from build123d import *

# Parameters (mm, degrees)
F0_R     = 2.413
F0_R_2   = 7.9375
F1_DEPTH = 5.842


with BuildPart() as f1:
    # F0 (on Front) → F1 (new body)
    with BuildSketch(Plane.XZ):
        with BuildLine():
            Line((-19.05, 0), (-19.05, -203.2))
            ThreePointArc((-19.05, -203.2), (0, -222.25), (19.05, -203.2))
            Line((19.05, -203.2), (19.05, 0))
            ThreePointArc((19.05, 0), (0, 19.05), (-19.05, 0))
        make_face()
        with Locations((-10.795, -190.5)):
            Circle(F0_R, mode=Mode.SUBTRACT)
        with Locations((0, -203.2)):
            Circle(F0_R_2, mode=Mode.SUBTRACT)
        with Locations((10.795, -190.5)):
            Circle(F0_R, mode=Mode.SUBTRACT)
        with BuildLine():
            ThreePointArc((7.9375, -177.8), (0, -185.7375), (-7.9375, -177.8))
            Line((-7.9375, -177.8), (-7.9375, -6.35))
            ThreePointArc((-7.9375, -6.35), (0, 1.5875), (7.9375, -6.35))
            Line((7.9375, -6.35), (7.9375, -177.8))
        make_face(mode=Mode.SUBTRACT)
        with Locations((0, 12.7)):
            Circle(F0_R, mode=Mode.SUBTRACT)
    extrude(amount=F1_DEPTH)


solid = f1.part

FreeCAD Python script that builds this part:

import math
import FreeCAD as App
import Part
import Sketcher
from FreeCAD import Vector
Q = App.Units.Quantity

doc = App.newDocument("Part")
body = doc.addObject("PartDesign::Body", "Body")

# Sketch on XZ plane
sketch1 = body.newObject("Sketcher::SketchObject", "Sketch")
sketch1.AttachmentSupport = (doc.getObject("XZ_Plane"), [""])
sketch1.MapMode = "FlatFace"
sketch1.addGeometry([
    Part.LineSegment(Vector(-19.1, 0, 0), Vector(-19.1, -203.2, 0)),  # 0
    Part.ArcOfCircle(Part.Circle(Vector(0, -203.2, 0), Vector(0, 0, 1), 19.1), math.radians(180), math.radians(360)),  # 1
    Part.LineSegment(Vector(19.1, -203.2, 0), Vector(19.1, 0, 0)),  # 2
    Part.ArcOfCircle(Part.Circle(Vector(0, 0, 0), Vector(0, 0, 1), 19.1), math.radians(0), math.radians(180)),  # 3
    Part.Circle(Vector(-10.8, -190.5, 0), Vector(0, 0, 1), 2.4),  # 4
    Part.Circle(Vector(0, -203.2, 0), Vector(0, 0, 1), 7.9),  # 5
    Part.Circle(Vector(10.8, -190.5, 0), Vector(0, 0, 1), 2.4),  # 6
    Part.LineSegment(Vector(7.9, -6.3, 0), Vector(7.9, -177.8, 0)),  # 7
    Part.ArcOfCircle(Part.Circle(Vector(0, -177.8, 0), Vector(0, 0, 1), 7.9), math.radians(180), math.radians(360)),  # 8
    Part.LineSegment(Vector(-7.9, -177.8, 0), Vector(-7.9, -6.3, 0)),  # 9
    Part.ArcOfCircle(Part.Circle(Vector(0, -6.3, 0), Vector(0, 0, 1), 7.9), math.radians(0), math.radians(180)),  # 10
    Part.Circle(Vector(0, 12.7, 0), Vector(0, 0, 1), 2.4),  # 11
], False)
sketch1.addConstraint([
    Sketcher.Constraint("Tangent", 0, 2, 1, 1),
    Sketcher.Constraint("Tangent", 1, 2, 2, 1),
    Sketcher.Constraint("Tangent", 2, 2, 3, 1),
    Sketcher.Constraint("Tangent", 3, 2, 0, 1),
    Sketcher.Constraint("Tangent", 7, 2, 8, 2),
    Sketcher.Constraint("Tangent", 8, 1, 9, 1),
    Sketcher.Constraint("Tangent", 9, 2, 10, 2),
    Sketcher.Constraint("Tangent", 10, 1, 7, 1),
    Sketcher.Constraint("Vertical", 0),
    Sketcher.Constraint("Vertical", 2),
    Sketcher.Constraint("Vertical", 7),
    Sketcher.Constraint("Vertical", 9),
    Sketcher.Constraint("Coincident", 3, 3, -1, 1),
    Sketcher.Constraint("Coincident", 5, 3, 1, 3),
    Sketcher.Constraint("Equal", 4, 6),
    Sketcher.Constraint("Equal", 5, 8),
    Sketcher.Constraint("Equal", 6, 11),
    Sketcher.Constraint("Symmetric", 4, 3, 6, 3, -2),
    Sketcher.Constraint("PointOnObject", 8, 3, -2),
    Sketcher.Constraint("PointOnObject", 11, 3, -2),
    Sketcher.Constraint("Diameter", 4, Q("0.19 in")),
    Sketcher.Constraint("DistanceY", 0, 2, 0, 1, Q("8 in")),
    Sketcher.Constraint("Radius", 1, Q("0.75 in")),
    Sketcher.Constraint("Diameter", 5, Q("0.625 in")),
    Sketcher.Constraint("DistanceY", 8, 3, -1, 1, Q("7 in")),
    Sketcher.Constraint("DistanceY", 4, 3, 11, 3, Q("8 in")),
    Sketcher.Constraint("DistanceY", 7, 2, 7, 1, Q("6.75 in")),
    Sketcher.Constraint("DistanceY", 4, 3, -1, 1, Q("7.5 in")),
    Sketcher.Constraint("DistanceX", 4, 3, 6, 3, Q("0.85 in")),
])
pad1 = body.newObject("PartDesign::Pad", "Pad")
pad1.Profile = sketch1
pad1.Length = Q("0.23 in")

doc.recompute()
